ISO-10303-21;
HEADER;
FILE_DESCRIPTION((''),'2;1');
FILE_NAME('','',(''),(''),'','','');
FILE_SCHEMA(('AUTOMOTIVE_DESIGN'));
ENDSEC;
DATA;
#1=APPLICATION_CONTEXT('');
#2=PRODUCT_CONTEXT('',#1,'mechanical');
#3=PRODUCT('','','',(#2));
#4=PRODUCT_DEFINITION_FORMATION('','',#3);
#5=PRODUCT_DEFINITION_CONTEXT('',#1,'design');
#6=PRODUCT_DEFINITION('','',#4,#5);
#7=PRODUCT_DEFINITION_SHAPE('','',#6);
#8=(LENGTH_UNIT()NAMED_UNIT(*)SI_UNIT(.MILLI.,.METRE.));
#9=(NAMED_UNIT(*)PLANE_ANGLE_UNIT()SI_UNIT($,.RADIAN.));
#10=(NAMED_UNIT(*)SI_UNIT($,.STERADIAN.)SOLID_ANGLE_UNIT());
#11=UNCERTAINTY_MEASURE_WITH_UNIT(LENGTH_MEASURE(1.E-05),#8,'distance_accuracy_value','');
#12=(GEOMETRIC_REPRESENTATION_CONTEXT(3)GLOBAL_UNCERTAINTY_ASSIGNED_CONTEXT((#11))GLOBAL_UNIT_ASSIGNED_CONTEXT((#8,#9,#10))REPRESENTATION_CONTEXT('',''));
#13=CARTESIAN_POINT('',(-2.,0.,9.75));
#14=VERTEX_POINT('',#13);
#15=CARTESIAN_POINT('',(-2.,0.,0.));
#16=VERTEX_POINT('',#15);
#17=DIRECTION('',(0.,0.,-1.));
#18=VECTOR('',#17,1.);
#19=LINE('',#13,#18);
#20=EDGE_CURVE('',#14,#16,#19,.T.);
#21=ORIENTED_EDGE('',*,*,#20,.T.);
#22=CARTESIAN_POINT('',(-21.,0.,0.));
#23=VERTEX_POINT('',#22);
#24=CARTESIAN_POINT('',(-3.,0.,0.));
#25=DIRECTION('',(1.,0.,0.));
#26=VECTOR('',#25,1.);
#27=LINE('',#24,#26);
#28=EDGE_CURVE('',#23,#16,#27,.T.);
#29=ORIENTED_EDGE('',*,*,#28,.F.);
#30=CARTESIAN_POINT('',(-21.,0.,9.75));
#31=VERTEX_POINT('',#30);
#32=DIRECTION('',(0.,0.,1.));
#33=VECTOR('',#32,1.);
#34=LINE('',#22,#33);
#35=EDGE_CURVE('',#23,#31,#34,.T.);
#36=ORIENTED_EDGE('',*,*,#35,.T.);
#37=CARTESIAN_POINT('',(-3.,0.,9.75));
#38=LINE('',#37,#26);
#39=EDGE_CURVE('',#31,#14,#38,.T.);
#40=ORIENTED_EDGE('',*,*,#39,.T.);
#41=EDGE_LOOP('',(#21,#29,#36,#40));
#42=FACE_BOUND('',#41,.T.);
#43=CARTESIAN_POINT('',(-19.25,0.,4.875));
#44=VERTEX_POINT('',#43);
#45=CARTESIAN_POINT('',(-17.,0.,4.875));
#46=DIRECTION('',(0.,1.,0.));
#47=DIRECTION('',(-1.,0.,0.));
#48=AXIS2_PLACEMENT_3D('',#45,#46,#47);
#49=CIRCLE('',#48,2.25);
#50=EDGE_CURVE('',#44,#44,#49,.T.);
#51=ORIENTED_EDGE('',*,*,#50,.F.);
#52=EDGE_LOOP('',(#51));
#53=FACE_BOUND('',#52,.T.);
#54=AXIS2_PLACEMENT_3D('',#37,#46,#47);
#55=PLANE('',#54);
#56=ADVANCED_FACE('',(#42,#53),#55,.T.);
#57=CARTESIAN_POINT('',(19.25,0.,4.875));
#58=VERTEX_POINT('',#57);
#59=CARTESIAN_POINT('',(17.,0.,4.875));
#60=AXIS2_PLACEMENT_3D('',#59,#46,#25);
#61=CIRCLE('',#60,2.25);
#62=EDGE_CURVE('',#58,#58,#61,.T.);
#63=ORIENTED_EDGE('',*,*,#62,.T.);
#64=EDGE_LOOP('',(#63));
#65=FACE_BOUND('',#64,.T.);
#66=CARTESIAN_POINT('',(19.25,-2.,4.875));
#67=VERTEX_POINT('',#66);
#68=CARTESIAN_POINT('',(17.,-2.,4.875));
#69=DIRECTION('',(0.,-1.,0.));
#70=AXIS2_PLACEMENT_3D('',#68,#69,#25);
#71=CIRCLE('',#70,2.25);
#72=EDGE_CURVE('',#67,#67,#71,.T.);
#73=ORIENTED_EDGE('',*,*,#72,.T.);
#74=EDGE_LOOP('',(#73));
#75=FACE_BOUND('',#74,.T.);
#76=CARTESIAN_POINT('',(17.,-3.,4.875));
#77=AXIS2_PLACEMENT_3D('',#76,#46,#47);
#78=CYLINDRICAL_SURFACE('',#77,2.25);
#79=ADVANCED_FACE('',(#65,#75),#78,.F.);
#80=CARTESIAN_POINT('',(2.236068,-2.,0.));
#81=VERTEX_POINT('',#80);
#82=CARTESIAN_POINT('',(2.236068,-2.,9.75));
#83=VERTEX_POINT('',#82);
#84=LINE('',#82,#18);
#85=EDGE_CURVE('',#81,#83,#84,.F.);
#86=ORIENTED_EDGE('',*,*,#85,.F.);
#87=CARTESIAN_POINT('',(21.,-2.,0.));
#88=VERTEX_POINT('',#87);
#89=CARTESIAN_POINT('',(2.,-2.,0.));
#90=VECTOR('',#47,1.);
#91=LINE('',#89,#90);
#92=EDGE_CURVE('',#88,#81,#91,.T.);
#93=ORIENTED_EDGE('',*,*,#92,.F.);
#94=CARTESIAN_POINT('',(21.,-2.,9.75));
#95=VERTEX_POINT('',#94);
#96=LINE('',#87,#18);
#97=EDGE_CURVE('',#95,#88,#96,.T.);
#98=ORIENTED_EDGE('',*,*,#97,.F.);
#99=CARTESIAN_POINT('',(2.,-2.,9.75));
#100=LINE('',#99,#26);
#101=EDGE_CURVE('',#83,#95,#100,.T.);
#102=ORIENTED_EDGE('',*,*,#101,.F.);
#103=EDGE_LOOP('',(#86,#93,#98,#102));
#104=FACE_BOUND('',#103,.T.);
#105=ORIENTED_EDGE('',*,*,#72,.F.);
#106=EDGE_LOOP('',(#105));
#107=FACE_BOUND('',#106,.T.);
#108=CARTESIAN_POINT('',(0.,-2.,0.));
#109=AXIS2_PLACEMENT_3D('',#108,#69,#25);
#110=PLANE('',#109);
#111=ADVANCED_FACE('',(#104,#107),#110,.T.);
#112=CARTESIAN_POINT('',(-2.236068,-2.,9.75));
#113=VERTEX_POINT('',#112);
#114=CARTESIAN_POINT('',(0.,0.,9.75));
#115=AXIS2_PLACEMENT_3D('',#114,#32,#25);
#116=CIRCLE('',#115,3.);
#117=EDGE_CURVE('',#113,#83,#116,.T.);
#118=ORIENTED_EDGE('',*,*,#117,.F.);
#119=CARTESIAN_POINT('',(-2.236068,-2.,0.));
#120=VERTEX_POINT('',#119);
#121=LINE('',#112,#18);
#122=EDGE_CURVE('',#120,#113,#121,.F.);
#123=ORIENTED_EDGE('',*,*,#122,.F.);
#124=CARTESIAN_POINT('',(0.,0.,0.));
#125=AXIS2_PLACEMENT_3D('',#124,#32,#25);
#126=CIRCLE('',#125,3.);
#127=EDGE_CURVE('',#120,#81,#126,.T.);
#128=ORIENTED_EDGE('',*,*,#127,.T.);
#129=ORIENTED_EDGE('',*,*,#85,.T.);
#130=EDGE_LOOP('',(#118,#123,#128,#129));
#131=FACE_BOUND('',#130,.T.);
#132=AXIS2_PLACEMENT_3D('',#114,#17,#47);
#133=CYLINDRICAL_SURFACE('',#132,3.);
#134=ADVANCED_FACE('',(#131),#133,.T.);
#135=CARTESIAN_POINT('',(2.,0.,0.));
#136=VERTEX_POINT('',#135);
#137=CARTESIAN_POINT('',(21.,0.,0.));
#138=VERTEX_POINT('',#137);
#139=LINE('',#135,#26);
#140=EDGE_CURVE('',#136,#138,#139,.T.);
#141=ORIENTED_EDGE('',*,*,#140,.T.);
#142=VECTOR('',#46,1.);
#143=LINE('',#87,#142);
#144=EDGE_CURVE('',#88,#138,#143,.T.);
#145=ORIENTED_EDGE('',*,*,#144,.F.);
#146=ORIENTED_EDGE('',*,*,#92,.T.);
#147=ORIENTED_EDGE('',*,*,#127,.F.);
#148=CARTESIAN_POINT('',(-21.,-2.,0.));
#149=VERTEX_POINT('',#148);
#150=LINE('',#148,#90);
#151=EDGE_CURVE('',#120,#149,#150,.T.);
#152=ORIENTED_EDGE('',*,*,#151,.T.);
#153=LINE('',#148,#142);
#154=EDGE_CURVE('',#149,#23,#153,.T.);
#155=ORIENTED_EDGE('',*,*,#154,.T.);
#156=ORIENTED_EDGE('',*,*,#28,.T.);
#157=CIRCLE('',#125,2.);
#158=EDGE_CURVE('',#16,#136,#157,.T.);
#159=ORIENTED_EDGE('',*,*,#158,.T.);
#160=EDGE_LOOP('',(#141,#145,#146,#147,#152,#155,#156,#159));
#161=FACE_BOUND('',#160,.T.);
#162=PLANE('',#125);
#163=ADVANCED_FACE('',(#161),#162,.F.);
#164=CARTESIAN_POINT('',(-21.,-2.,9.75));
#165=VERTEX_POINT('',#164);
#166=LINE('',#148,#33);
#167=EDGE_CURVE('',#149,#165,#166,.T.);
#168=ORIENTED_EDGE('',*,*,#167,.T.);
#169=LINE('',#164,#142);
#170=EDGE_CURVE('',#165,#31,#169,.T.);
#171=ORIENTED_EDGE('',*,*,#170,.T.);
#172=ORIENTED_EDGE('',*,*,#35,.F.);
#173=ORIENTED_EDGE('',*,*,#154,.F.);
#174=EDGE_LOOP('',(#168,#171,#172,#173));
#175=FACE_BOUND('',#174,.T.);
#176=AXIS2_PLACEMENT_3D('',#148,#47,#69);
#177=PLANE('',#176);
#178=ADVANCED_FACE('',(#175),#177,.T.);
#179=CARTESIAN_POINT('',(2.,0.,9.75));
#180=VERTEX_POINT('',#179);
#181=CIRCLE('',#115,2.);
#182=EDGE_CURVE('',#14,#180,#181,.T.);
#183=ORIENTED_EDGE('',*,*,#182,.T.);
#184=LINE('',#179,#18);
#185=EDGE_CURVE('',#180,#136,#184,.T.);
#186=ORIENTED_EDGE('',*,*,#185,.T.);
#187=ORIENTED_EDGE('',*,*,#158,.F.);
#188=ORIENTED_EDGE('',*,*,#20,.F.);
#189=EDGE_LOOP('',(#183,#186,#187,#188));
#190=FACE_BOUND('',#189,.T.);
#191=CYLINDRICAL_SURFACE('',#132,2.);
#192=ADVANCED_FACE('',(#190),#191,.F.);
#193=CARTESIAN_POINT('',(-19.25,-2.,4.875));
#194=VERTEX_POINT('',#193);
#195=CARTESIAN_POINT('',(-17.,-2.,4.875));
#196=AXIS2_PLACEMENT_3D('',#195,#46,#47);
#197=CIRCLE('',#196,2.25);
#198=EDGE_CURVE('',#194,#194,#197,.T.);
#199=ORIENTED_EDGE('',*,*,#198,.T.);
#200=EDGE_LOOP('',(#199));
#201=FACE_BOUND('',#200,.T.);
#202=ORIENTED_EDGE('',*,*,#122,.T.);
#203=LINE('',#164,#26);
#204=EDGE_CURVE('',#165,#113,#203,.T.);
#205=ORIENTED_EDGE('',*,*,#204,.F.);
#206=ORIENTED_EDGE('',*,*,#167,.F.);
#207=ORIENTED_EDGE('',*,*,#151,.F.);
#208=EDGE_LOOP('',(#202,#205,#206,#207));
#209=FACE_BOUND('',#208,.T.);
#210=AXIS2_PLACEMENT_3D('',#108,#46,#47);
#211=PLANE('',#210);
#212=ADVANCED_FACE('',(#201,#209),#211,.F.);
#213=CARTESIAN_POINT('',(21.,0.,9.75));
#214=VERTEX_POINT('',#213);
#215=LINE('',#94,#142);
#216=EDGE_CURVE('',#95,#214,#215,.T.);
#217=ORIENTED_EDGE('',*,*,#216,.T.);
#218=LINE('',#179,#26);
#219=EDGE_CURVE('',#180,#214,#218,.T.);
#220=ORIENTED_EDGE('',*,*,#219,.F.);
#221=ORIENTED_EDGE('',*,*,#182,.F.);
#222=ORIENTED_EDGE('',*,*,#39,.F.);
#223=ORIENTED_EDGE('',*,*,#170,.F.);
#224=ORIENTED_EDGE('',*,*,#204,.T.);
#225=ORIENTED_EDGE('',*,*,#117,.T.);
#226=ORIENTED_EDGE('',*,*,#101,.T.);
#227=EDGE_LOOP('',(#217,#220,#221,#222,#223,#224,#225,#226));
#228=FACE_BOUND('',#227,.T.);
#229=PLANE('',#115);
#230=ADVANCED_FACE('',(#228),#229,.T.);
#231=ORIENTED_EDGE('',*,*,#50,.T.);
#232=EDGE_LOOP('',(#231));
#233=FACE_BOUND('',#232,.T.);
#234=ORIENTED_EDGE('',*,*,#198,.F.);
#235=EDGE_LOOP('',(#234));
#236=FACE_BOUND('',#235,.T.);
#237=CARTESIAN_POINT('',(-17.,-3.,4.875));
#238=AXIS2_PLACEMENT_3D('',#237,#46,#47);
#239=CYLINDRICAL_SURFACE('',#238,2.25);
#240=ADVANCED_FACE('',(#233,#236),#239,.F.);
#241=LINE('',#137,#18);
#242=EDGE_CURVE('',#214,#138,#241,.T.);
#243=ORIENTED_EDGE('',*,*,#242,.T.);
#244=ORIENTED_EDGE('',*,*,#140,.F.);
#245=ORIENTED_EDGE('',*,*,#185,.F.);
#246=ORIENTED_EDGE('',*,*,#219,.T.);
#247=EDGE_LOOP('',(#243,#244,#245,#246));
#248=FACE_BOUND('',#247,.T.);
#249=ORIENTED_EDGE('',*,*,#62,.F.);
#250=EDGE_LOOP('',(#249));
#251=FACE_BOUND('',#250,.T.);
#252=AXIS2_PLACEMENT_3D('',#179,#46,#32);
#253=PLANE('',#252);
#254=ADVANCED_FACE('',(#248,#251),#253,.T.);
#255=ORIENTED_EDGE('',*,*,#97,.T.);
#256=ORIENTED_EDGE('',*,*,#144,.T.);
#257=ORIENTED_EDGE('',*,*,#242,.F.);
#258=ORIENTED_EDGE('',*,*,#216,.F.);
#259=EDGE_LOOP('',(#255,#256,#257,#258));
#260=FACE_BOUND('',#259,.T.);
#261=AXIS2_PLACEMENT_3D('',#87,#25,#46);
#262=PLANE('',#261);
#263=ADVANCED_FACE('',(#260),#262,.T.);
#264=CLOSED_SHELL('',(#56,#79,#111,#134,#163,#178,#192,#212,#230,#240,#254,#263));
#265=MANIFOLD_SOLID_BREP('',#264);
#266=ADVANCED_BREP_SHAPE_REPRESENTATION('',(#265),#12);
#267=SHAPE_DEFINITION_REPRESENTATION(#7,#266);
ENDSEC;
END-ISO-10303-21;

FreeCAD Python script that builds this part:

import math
import FreeCAD as App
import Part
import Sketcher
Q = App.Units.Quantity

doc = App.newDocument("Part")
params = doc.addObject("Spreadsheet::Sheet", "Params")
for row, (alias, value) in enumerate([
    ("sketch1_radius", "2 mm"),
    ("sketch1_radius2", "3 mm"),
    ("pad1_length", "9.75 mm"),
    ("sketch2_width", "19 mm"),
    ("sketch2_height", "9.75 mm"),
    ("pad2_length", "2 mm"),
    ("sketch3_diameter", "4.5 mm"),
], start=1):
    params.set(f"A{row}", alias)
    params.set(f"B{row}", "=" + value)
    params.setAlias(f"B{row}", alias)

body = doc.addObject("PartDesign::Body", "Body")

# Sketch on XY plane
sketch1 = doc.addObject("Sketcher::SketchObject", "Sketch")
body.addObject(sketch1)
sketch1.AttachmentSupport = (doc.XY_Plane, [""])
sketch1.MapMode = "FlatFace"
sketch1.addGeometry(Part.ArcOfCircle(Part.Circle(App.Vector(0, 0, 0), App.Vector(0, 0, 1), 2), math.radians(180), math.radians(360)), False)
sketch1.addGeometry(Part.LineSegment(App.Vector(-2, 0, 0), App.Vector(-3, 0, 0)), False)
sketch1.addGeometry(Part.ArcOfCircle(Part.Circle(App.Vector(0, 0, 0), App.Vector(0, 0, 1), 3), math.radians(180), math.radians(360)), False)
sketch1.addGeometry(Part.LineSegment(App.Vector(3, 0, 0), App.Vector(2, 0, 0)), False)
sketch1.addConstraint(Sketcher.Constraint("Coincident", 0, 1, 1, 1))
sketch1.addConstraint(Sketcher.Constraint("Coincident", 1, 2, 2, 1))
sketch1.addConstraint(Sketcher.Constraint("Coincident", 2, 2, 3, 1))
sketch1.addConstraint(Sketcher.Constraint("Coincident", 3, 2, 0, 2))
sketch1.addConstraint(Sketcher.Constraint("Horizontal", 1))
sketch1.addConstraint(Sketcher.Constraint("Horizontal", 3))
sketch1.addConstraint(Sketcher.Constraint("Coincident", 0, 3, -1, 1))
sketch1.addConstraint(Sketcher.Constraint("Coincident", 2, 3, -1, 1))
sketch1.addConstraint(Sketcher.Constraint("PointOnObject", 0, 1, -1))
sketch1.addConstraint(Sketcher.Constraint("PointOnObject", 2, 2, -1))
sketch1.addConstraint(Sketcher.Constraint("Radius", 0, Q("2 mm")))
sketch1.addConstraint(Sketcher.Constraint("Radius", 2, Q("3 mm")))
sketch1.setExpression("Constraints[10]", "Params.sketch1_radius")
sketch1.setExpression("Constraints[11]", "Params.sketch1_radius2")
pad1 = doc.addObject("PartDesign::Pad", "Pad")
body.addObject(pad1)
pad1.Profile = sketch1
pad1.setExpression("Length", "Params.pad1_length")

# Sketch on XZ plane
sketch2 = doc.addObject("Sketcher::SketchObject", "Sketch001")
body.addObject(sketch2)
sketch2.AttachmentSupport = (doc.XZ_Plane, [""])
sketch2.MapMode = "FlatFace"
sketch2.addGeometry(Part.LineSegment(App.Vector(-21, 0, 0), App.Vector(-21, 10, 0)), False)
sketch2.addGeometry(Part.LineSegment(App.Vector(-21, 10, 0), App.Vector(-2, 10, 0)), False)
sketch2.addGeometry(Part.LineSegment(App.Vector(-2, 10, 0), App.Vector(-2, 0, 0)), False)
sketch2.addGeometry(Part.LineSegment(App.Vector(-2, 0, 0), App.Vector(-21, 0, 0)), False)
sketch2.addGeometry(Part.LineSegment(App.Vector(2, 0, 0), App.Vector(2, 10, 0)), False)
sketch2.addGeometry(Part.LineSegment(App.Vector(2, 10, 0), App.Vector(21, 10, 0)), False)
sketch2.addGeometry(Part.LineSegment(App.Vector(21, 10, 0), App.Vector(21, 0, 0)), False)
sketch2.addGeometry(Part.LineSegment(App.Vector(21, 0, 0), App.Vector(2, 0, 0)), False)
sketch2.addConstraint(Sketcher.Constraint("Coincident", 0, 2, 1, 1))
sketch2.addConstraint(Sketcher.Constraint("Coincident", 1, 2, 2, 1))
sketch2.addConstraint(Sketcher.Constraint("Coincident", 2, 2, 3, 1))
sketch2.addConstraint(Sketcher.Constraint("Coincident", 3, 2, 0, 1))
sketch2.addConstraint(Sketcher.Constraint("Coincident", 4, 2, 5, 1))
sketch2.addConstraint(Sketcher.Constraint("Coincident", 5, 2, 6, 1))
sketch2.addConstraint(Sketcher.Constraint("Coincident", 6, 2, 7, 1))
sketch2.addConstraint(Sketcher.Constraint("Coincident", 7, 2, 4, 1))
sketch2.addConstraint(Sketcher.Constraint("Vertical", 0))
sketch2.addConstraint(Sketcher.Constraint("Horizontal", 1))
sketch2.addConstraint(Sketcher.Constraint("Vertical", 2))
sketch2.addConstraint(Sketcher.Constraint("Horizontal", 3))
sketch2.addConstraint(Sketcher.Constraint("Vertical", 4))
sketch2.addConstraint(Sketcher.Constraint("Horizontal", 5))
sketch2.addConstraint(Sketcher.Constraint("Vertical", 6))
sketch2.addConstraint(Sketcher.Constraint("Horizontal", 7))
sketch2.addConstraint(Sketcher.Constraint("Symmetric", 3, 2, 6, 2, -1, 1))
sketch2.addConstraint(Sketcher.Constraint("Symmetric", 1, 2, 4, 2, -2))
sketch2.addConstraint(Sketcher.Constraint("PointOnObject", 2, 2, -1))
sketch2.addConstraint(Sketcher.Constraint("DistanceX", 1, 1, 1, 2, Q("19 mm")))
sketch2.addConstraint(Sketcher.Constraint("DistanceX", 0, 2, -1, 1, Q("21 mm")))
sketch2.addConstraint(Sketcher.Constraint("DistanceY", 0, 1, 0, 2, Q("9.75 mm")))
sketch2.setExpression("Constraints[19]", "Params.sketch2_width")
sketch2.setExpression("Constraints[21]", "Params.sketch2_height")
pad2 = doc.addObject("PartDesign::Pad", "Pad001")
body.addObject(pad2)
pad2.Profile = sketch2
pad2.setExpression("Length", "Params.pad2_length")

# Sketch on XZ plane
sketch3 = doc.addObject("Sketcher::SketchObject", "Sketch002")
body.addObject(sketch3)
sketch3.AttachmentSupport = (doc.XZ_Plane, [""])
sketch3.MapMode = "FlatFace"
sketch3.addGeometry(Part.Circle(App.Vector(-17, 4.9, 0), App.Vector(0, 0, 1), 2.2), False)
sketch3.addGeometry(Part.Circle(App.Vector(17, 4.9, 0), App.Vector(0, 0, 1), 2.2), False)
sketch3.addConstraint(Sketcher.Constraint("Equal", 0, 1))
sketch3.addConstraint(Sketcher.Constraint("Symmetric", 0, 3, 1, 3, -2))
sketch3.addConstraint(Sketcher.Constraint("Diameter", 0, Q("4.5 mm")))
sketch3.addConstraint(Sketcher.Constraint("DistanceX", 0, 3, -1, 1, Q("17 mm")))
sketch3.addConstraint(Sketcher.Constraint("DistanceY", -1, 1, 0, 3, Q("4.875 mm")))
sketch3.setExpression("Constraints[2]", "Params.sketch3_diameter")
pocket1 = doc.addObject("PartDesign::Pocket", "Pocket")
body.addObject(pocket1)
pocket1.Profile = sketch3
pocket1.Type = "ThroughAll"
pocket1.Reversed = True

doc.recompute()
